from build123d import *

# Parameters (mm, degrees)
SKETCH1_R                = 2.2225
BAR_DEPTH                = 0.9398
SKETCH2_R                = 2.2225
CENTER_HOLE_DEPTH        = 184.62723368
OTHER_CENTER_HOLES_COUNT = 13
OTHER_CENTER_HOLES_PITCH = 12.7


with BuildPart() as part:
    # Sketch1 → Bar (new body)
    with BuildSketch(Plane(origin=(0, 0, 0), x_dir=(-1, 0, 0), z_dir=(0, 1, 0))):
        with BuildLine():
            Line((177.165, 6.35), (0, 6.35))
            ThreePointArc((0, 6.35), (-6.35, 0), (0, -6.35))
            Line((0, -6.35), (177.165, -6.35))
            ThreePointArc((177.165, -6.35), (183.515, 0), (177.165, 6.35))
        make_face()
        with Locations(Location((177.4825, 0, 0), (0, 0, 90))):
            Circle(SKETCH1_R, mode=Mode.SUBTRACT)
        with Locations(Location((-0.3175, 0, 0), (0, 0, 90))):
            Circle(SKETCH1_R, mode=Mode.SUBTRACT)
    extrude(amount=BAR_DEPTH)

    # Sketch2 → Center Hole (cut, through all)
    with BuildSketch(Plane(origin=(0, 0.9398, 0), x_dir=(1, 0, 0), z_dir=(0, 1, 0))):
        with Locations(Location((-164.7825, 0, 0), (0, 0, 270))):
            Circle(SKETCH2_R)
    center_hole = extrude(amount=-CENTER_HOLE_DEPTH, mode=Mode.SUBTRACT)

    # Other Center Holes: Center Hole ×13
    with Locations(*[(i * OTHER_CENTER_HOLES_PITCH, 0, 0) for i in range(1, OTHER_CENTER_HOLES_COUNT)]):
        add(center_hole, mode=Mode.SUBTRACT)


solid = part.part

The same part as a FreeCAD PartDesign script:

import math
import FreeCAD as App
import Part
import Sketcher
from FreeCAD import Vector
Q = App.Units.Quantity

doc = App.newDocument("Part")
body = doc.addObject("PartDesign::Body", "Body")

sketch1 = body.newObject("Sketcher::SketchObject", "Sketch")
sketch1.AttachmentSupport = (doc.getObject("XZ_Plane"), [""])
sketch1.MapMode = "FlatFace"
sketch1.addGeometry(Part.LineSegment(Vector(-177.2, 6.3, 0), Vector(0, 6.3, 0)), False)
sketch1.addGeometry(Part.ArcOfCircle(Part.Circle(Vector(0, 0, 0), Vector(0, 0, 1), 6.3), math.radians(-90), math.radians(90)), False)
sketch1.addGeometry(Part.LineSegment(Vector(0, -6.3, 0), Vector(-177.2, -6.3, 0)), False)
sketch1.addGeometry(Part.ArcOfCircle(Part.Circle(Vector(-177.2, 0, 0), Vector(0, 0, 1), 6.3), math.radians(90), math.radians(270)), False)
sketch1.addGeometry(Part.Circle(Vector(0.3, 0, 0), Vector(0, 0, 1), 2.2), False)
sketch1.addGeometry(Part.Circle(Vector(-177.5, 0, 0), Vector(0, 0, 1), 2.2), False)
sketch1.addConstraint(Sketcher.Constraint("Tangent", 0, 2, 1, 2))
sketch1.addConstraint(Sketcher.Constraint("Tangent", 1, 1, 2, 1))
sketch1.addConstraint(Sketcher.Constraint("Tangent", 2, 2, 3, 2))
sketch1.addConstraint(Sketcher.Constraint("Tangent", 3, 1, 0, 1))
sketch1.addConstraint(Sketcher.Constraint("Horizontal", 0))
sketch1.addConstraint(Sketcher.Constraint("Horizontal", 2))
sketch1.addConstraint(Sketcher.Constraint("Coincident", 1, 3, -1, 1))
sketch1.addConstraint(Sketcher.Constraint("Equal", 4, 5))
sketch1.addConstraint(Sketcher.Constraint("PointOnObject", 4, 3, -1))
sketch1.addConstraint(Sketcher.Constraint("PointOnObject", 5, 3, -1))
sketch1.addConstraint(Sketcher.Constraint("Radius", 1, Q("0.25 in")))
sketch1.addConstraint(Sketcher.Constraint("Diameter", 4, Q("0.175 in")))
sketch1.addConstraint(Sketcher.Constraint("DistanceX", 5, 3, 4, 3, Q("7 in")))
sketch1.addConstraint(Sketcher.Constraint("DistanceX", 0, 1, 0, 2, Q("6.975 in")))
sketch1.addConstraint(Sketcher.Constraint("DistanceX", -1, 1, 4, 3, Q("0.0125 in")))
pad1 = body.newObject("PartDesign::Pad", "Pad")
pad1.Profile = sketch1
pad1.Length = Q("0.037 in")
pad1.Reversed = True

sketch2 = body.newObject("Sketcher::SketchObject", "Sketch001")
sketch2.AttachmentSupport = (doc.getObject("XZ_Plane"), [""])
sketch2.MapMode = "FlatFace"
sketch2.AttachmentOffset = App.Placement(Vector(0, 0, -0.037 * 25.4), App.Rotation())
sketch2.addGeometry(Part.Circle(Vector(-164.8, 0, 0), Vector(0, 0, 1), 2.2), False)
sketch2.addConstraint(Sketcher.Constraint("PointOnObject", 0, 3, -1))
sketch2.addConstraint(Sketcher.Constraint("Diameter", 0, Q("0.175 in")))
sketch2.addConstraint(Sketcher.Constraint("DistanceX", 0, 3, -1, 1, Q("6.4875 in")))
pocket1 = body.newObject("PartDesign::Pocket", "Pocket")
pocket1.Profile = sketch2
pocket1.Type = "ThroughAll"
pocket1.Reversed = True
doc.recompute()

linearpattern = body.newObject("PartDesign::LinearPattern", "LinearPattern")
linearpattern.Originals = [pocket1]
linearpattern.Direction = (doc.getObject("X_Axis"), [""])
linearpattern.Mode = "offset"
linearpattern.Offset = Q("0.5 in")
linearpattern.Occurrences = 13
body.Tip = linearpattern

doc.recompute()
